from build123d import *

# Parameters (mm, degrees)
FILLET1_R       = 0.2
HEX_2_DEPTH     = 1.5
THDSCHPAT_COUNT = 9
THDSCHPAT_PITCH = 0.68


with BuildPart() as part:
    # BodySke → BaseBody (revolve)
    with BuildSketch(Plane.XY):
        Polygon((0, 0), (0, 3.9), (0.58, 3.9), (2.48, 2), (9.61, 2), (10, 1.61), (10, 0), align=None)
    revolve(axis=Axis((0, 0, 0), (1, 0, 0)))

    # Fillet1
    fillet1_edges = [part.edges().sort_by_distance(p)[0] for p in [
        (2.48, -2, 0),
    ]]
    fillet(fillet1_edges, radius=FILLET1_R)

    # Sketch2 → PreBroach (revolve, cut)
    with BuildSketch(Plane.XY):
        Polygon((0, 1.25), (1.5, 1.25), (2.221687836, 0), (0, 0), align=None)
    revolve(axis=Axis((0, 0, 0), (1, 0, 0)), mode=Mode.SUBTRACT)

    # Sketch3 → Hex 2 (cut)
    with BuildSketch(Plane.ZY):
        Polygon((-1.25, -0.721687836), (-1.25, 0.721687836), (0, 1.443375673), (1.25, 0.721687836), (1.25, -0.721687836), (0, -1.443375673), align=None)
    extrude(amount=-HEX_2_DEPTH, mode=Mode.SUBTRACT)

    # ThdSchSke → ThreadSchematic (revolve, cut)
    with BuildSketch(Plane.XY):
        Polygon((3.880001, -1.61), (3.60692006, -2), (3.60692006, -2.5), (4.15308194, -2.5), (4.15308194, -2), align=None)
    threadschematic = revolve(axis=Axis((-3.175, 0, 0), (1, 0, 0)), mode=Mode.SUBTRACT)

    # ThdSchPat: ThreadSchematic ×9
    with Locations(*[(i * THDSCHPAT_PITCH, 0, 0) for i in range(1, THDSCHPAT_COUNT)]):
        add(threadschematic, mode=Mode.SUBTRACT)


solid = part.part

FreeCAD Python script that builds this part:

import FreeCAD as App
import Part
import Sketcher
Q = App.Units.Quantity


def edges_at(feature, points):
    """Names of the edges that pass closest to the given points."""
    edges = feature.Shape.Edges
    near = lambda p: min(range(len(edges)), key=lambda i: edges[i].distToShape(Part.Vertex(*p))[0])
    return sorted({f"Edge{near(p) + 1}" for p in points})

doc = App.newDocument("Part")
body = doc.addObject("PartDesign::Body", "Body")

# Sketch on XY plane
sketch1 = doc.addObject("Sketcher::SketchObject", "Sketch")
body.addObject(sketch1)
sketch1.AttachmentSupport = (doc.XY_Plane, [""])
sketch1.MapMode = "FlatFace"
sketch1.addGeometry([
    Part.LineSegment(App.Vector(0, 3.9, 0), App.Vector(0, 0, 0)),  # 0
    Part.LineSegment(App.Vector(0, 0, 0), App.Vector(10, 0, 0)),  # 1
    Part.LineSegment(App.Vector(10, 0, 0), App.Vector(10, 1.6, 0)),  # 2
    Part.LineSegment(App.Vector(10, 1.6, 0), App.Vector(9.6, 2, 0)),  # 3
    Part.LineSegment(App.Vector(9.6, 2, 0), App.Vector(2.5, 2, 0)),  # 4
    Part.LineSegment(App.Vector(2.5, 2, 0), App.Vector(0.6, 3.9, 0)),  # 5
    Part.LineSegment(App.Vector(0.6, 3.9, 0), App.Vector(0, 3.9, 0)),  # 6
], False)
sketch1.addConstraint([
    Sketcher.Constraint("Coincident", 0, 2, 1, 1),
    Sketcher.Constraint("Coincident", 1, 2, 2, 1),
    Sketcher.Constraint("Coincident", 2, 2, 3, 1),
    Sketcher.Constraint("Coincident", 3, 2, 4, 1),
    Sketcher.Constraint("Coincident", 4, 2, 5, 1),
    Sketcher.Constraint("Coincident", 5, 2, 6, 1),
    Sketcher.Constraint("Coincident", 6, 2, 0, 1),
    Sketcher.Constraint("Vertical", 0),
    Sketcher.Constraint("Horizontal", 1),
    Sketcher.Constraint("Vertical", 2),
    Sketcher.Constraint("Horizontal", 4),
    Sketcher.Constraint("Horizontal", 6),
    Sketcher.Constraint("Coincident", 0, 2, -1, 1),
    Sketcher.Constraint("Parallel", 3, 5),
    Sketcher.Constraint("DistanceX", 1, 1, 1, 2, Q("10 mm")),
    Sketcher.Constraint("Angle", 3, Q("135 deg")),
    Sketcher.Constraint("DistanceY", 0, 2, 0, 1, Q("3.9 mm")),
    Sketcher.Constraint("DistanceY", -1, 1, 3, 2, Q("2 mm")),
    Sketcher.Constraint("DistanceX", 4, 2, 4, 1, Q("7.13 mm")),
    Sketcher.Constraint("DistanceX", 6, 2, 6, 1, Q("0.58 mm")),
])
revolution = doc.addObject("PartDesign::Revolution", "Revolution")
body.addObject(revolution)
revolution.Profile = sketch1
revolution.ReferenceAxis = (sketch1, ["H_Axis"])
revolution.Angle = 360
doc.recompute()

fillet = doc.addObject("PartDesign::Fillet", "Fillet")
body.addObject(fillet)
fillet.Base = (revolution, edges_at(revolution, [(2.48, -2, 0)]))
fillet.Radius = 0.2

# Sketch on XY plane
sketch2 = doc.addObject("Sketcher::SketchObject", "Sketch001")
body.addObject(sketch2)
sketch2.AttachmentSupport = (doc.XY_Plane, [""])
sketch2.MapMode = "FlatFace"
sketch2.addGeometry([
    Part.LineSegment(App.Vector(1.5, 1.2, 0), App.Vector(0, 1.2, 0)),
    Part.LineSegment(App.Vector(0, 1.2, 0), App.Vector(0, 0, 0)),
    Part.LineSegment(App.Vector(0, 0, 0), App.Vector(2.2, 0, 0)),
    Part.LineSegment(App.Vector(2.2, 0, 0), App.Vector(1.5, 1.2, 0)),
], False)
sketch2.addConstraint([
    Sketcher.Constraint("Coincident", 0, 2, 1, 1),
    Sketcher.Constraint("Coincident", 1, 2, 2, 1),
    Sketcher.Constraint("Coincident", 2, 2, 3, 1),
    Sketcher.Constraint("Coincident", 3, 2, 0, 1),
    Sketcher.Constraint("Horizontal", 0),
    Sketcher.Constraint("Vertical", 1),
    Sketcher.Constraint("Horizontal", 2),
    Sketcher.Constraint("Coincident", 1, 2, -1, 1),
    Sketcher.Constraint("Angle", 3, Q("120 deg")),
    Sketcher.Constraint("DistanceX", 0, 2, 0, 1, Q("1.5 mm")),
    Sketcher.Constraint("DistanceY", 1, 2, 1, 1, Q("1.25 mm")),
])
groove = doc.addObject("PartDesign::Groove", "Groove")
body.addObject(groove)
groove.Profile = sketch2
groove.ReferenceAxis = (sketch2, ["H_Axis"])
groove.Angle = 360

# Sketch on YZ plane
sketch3 = doc.addObject("Sketcher::SketchObject", "Sketch002")
body.addObject(sketch3)
sketch3.AttachmentSupport = (doc.YZ_Plane, [""])
sketch3.MapMode = "FlatFace"
sketch3.addGeometry([
    Part.LineSegment(App.Vector(0.7, -1.2, 0), App.Vector(-0.7, -1.2, 0)),  # 0
    Part.LineSegment(App.Vector(-0.7, -1.2, 0), App.Vector(-1.4, 0, 0)),  # 1
    Part.LineSegment(App.Vector(-1.4, 0, 0), App.Vector(-0.7, 1.2, 0)),  # 2
    Part.LineSegment(App.Vector(-0.7, 1.2, 0), App.Vector(0.7, 1.2, 0)),  # 3
    Part.LineSegment(App.Vector(0.7, 1.2, 0), App.Vector(1.4, 0, 0)),  # 4
    Part.LineSegment(App.Vector(1.4, 0, 0), App.Vector(0.7, -1.2, 0)),  # 5
], False)
sketch3.addConstraint([
    Sketcher.Constraint("Coincident", 0, 2, 1, 1),
    Sketcher.Constraint("Coincident", 1, 2, 2, 1),
    Sketcher.Constraint("Coincident", 2, 2, 3, 1),
    Sketcher.Constraint("Coincident", 3, 2, 4, 1),
    Sketcher.Constraint("Coincident", 4, 2, 5, 1),
    Sketcher.Constraint("Coincident", 5, 2, 0, 1),
    Sketcher.Constraint("Horizontal", 0),
    Sketcher.Constraint("Horizontal", 3),
    Sketcher.Constraint("Symmetric", 0, 2, 3, 2, -1, 1),
    Sketcher.Constraint("Symmetric", 1, 2, 4, 2, -1, 1),
    Sketcher.Constraint("PointOnObject", 1, 2, -1),
    Sketcher.Constraint("Parallel", 2, 5),
    Sketcher.Constraint("Vertical", 0, 2, 2, 2),
    Sketcher.Constraint("Angle", 1, Q("120 deg")),
    Sketcher.Constraint("DistanceY", 0, 2, 2, 2, Q("2.5 mm")),
    Sketcher.Constraint("DistanceX", 0, 2, 0, 1, Q("1.443376 mm")),
])
pocket1 = doc.addObject("PartDesign::Pocket", "Pocket")
body.addObject(pocket1)
pocket1.Profile = sketch3
pocket1.Length = 1.5
pocket1.Reversed = True

# Sketch on XY plane
sketch4 = doc.addObject("Sketcher::SketchObject", "Sketch003")
body.addObject(sketch4)
sketch4.AttachmentSupport = (doc.XY_Plane, [""])
sketch4.MapMode = "FlatFace"
sketch4.addGeometry([
    Part.LineSegment(App.Vector(3.88, -1.61, 0), App.Vector(3.61, -2, 0)),  # 0
    Part.LineSegment(App.Vector(3.61, -2, 0), App.Vector(3.61, -2.5, 0)),  # 1
    Part.LineSegment(App.Vector(3.61, -2.5, 0), App.Vector(4.15, -2.5, 0)),  # 2
    Part.LineSegment(App.Vector(4.15, -2.5, 0), App.Vector(4.15, -2, 0)),  # 3
    Part.LineSegment(App.Vector(4.15, -2, 0), App.Vector(3.88, -1.61, 0)),  # 4
], False)
sketch4.addConstraint([
    Sketcher.Constraint("Coincident", 0, 2, 1, 1),
    Sketcher.Constraint("Coincident", 1, 2, 2, 1),
    Sketcher.Constraint("Coincident", 2, 2, 3, 1),
    Sketcher.Constraint("Coincident", 3, 2, 4, 1),
    Sketcher.Constraint("Coincident", 4, 2, 0, 1),
    Sketcher.Constraint("Vertical", 1),
    Sketcher.Constraint("Horizontal", 2),
    Sketcher.Constraint("Vertical", 3),
    Sketcher.Constraint("Horizontal", 0, 2, 3, 2),
    Sketcher.Constraint("Equal", 0, 4),
    Sketcher.Constraint("Angle", 0, Q("-125 deg")),
    Sketcher.Constraint("DistanceY", 1, 2, 1, 1, Q("0.5 mm")),
    Sketcher.Constraint("DistanceY", 0, 2, -1, 1, Q("2 mm")),
    Sketcher.Constraint("DistanceX", -1, 1, 4, 2, Q("3.880001 mm")),
    Sketcher.Constraint("DistanceY", 4, 2, -1, 1, Q("1.61 mm")),
])
groove2 = doc.addObject("PartDesign::Groove", "Groove001")
body.addObject(groove2)
groove2.Profile = sketch4
groove2.ReferenceAxis = (sketch4, ["H_Axis"])
groove2.Angle = 360
doc.recompute()

linearpattern = doc.addObject("PartDesign::LinearPattern", "LinearPattern")
body.addObject(linearpattern)
linearpattern.Originals = [groove2]
linearpattern.Direction = (doc.X_Axis, [""])
linearpattern.Mode = "offset"
linearpattern.Offset = 0.68
linearpattern.Occurrences = 9
body.Tip = linearpattern

doc.recompute()
